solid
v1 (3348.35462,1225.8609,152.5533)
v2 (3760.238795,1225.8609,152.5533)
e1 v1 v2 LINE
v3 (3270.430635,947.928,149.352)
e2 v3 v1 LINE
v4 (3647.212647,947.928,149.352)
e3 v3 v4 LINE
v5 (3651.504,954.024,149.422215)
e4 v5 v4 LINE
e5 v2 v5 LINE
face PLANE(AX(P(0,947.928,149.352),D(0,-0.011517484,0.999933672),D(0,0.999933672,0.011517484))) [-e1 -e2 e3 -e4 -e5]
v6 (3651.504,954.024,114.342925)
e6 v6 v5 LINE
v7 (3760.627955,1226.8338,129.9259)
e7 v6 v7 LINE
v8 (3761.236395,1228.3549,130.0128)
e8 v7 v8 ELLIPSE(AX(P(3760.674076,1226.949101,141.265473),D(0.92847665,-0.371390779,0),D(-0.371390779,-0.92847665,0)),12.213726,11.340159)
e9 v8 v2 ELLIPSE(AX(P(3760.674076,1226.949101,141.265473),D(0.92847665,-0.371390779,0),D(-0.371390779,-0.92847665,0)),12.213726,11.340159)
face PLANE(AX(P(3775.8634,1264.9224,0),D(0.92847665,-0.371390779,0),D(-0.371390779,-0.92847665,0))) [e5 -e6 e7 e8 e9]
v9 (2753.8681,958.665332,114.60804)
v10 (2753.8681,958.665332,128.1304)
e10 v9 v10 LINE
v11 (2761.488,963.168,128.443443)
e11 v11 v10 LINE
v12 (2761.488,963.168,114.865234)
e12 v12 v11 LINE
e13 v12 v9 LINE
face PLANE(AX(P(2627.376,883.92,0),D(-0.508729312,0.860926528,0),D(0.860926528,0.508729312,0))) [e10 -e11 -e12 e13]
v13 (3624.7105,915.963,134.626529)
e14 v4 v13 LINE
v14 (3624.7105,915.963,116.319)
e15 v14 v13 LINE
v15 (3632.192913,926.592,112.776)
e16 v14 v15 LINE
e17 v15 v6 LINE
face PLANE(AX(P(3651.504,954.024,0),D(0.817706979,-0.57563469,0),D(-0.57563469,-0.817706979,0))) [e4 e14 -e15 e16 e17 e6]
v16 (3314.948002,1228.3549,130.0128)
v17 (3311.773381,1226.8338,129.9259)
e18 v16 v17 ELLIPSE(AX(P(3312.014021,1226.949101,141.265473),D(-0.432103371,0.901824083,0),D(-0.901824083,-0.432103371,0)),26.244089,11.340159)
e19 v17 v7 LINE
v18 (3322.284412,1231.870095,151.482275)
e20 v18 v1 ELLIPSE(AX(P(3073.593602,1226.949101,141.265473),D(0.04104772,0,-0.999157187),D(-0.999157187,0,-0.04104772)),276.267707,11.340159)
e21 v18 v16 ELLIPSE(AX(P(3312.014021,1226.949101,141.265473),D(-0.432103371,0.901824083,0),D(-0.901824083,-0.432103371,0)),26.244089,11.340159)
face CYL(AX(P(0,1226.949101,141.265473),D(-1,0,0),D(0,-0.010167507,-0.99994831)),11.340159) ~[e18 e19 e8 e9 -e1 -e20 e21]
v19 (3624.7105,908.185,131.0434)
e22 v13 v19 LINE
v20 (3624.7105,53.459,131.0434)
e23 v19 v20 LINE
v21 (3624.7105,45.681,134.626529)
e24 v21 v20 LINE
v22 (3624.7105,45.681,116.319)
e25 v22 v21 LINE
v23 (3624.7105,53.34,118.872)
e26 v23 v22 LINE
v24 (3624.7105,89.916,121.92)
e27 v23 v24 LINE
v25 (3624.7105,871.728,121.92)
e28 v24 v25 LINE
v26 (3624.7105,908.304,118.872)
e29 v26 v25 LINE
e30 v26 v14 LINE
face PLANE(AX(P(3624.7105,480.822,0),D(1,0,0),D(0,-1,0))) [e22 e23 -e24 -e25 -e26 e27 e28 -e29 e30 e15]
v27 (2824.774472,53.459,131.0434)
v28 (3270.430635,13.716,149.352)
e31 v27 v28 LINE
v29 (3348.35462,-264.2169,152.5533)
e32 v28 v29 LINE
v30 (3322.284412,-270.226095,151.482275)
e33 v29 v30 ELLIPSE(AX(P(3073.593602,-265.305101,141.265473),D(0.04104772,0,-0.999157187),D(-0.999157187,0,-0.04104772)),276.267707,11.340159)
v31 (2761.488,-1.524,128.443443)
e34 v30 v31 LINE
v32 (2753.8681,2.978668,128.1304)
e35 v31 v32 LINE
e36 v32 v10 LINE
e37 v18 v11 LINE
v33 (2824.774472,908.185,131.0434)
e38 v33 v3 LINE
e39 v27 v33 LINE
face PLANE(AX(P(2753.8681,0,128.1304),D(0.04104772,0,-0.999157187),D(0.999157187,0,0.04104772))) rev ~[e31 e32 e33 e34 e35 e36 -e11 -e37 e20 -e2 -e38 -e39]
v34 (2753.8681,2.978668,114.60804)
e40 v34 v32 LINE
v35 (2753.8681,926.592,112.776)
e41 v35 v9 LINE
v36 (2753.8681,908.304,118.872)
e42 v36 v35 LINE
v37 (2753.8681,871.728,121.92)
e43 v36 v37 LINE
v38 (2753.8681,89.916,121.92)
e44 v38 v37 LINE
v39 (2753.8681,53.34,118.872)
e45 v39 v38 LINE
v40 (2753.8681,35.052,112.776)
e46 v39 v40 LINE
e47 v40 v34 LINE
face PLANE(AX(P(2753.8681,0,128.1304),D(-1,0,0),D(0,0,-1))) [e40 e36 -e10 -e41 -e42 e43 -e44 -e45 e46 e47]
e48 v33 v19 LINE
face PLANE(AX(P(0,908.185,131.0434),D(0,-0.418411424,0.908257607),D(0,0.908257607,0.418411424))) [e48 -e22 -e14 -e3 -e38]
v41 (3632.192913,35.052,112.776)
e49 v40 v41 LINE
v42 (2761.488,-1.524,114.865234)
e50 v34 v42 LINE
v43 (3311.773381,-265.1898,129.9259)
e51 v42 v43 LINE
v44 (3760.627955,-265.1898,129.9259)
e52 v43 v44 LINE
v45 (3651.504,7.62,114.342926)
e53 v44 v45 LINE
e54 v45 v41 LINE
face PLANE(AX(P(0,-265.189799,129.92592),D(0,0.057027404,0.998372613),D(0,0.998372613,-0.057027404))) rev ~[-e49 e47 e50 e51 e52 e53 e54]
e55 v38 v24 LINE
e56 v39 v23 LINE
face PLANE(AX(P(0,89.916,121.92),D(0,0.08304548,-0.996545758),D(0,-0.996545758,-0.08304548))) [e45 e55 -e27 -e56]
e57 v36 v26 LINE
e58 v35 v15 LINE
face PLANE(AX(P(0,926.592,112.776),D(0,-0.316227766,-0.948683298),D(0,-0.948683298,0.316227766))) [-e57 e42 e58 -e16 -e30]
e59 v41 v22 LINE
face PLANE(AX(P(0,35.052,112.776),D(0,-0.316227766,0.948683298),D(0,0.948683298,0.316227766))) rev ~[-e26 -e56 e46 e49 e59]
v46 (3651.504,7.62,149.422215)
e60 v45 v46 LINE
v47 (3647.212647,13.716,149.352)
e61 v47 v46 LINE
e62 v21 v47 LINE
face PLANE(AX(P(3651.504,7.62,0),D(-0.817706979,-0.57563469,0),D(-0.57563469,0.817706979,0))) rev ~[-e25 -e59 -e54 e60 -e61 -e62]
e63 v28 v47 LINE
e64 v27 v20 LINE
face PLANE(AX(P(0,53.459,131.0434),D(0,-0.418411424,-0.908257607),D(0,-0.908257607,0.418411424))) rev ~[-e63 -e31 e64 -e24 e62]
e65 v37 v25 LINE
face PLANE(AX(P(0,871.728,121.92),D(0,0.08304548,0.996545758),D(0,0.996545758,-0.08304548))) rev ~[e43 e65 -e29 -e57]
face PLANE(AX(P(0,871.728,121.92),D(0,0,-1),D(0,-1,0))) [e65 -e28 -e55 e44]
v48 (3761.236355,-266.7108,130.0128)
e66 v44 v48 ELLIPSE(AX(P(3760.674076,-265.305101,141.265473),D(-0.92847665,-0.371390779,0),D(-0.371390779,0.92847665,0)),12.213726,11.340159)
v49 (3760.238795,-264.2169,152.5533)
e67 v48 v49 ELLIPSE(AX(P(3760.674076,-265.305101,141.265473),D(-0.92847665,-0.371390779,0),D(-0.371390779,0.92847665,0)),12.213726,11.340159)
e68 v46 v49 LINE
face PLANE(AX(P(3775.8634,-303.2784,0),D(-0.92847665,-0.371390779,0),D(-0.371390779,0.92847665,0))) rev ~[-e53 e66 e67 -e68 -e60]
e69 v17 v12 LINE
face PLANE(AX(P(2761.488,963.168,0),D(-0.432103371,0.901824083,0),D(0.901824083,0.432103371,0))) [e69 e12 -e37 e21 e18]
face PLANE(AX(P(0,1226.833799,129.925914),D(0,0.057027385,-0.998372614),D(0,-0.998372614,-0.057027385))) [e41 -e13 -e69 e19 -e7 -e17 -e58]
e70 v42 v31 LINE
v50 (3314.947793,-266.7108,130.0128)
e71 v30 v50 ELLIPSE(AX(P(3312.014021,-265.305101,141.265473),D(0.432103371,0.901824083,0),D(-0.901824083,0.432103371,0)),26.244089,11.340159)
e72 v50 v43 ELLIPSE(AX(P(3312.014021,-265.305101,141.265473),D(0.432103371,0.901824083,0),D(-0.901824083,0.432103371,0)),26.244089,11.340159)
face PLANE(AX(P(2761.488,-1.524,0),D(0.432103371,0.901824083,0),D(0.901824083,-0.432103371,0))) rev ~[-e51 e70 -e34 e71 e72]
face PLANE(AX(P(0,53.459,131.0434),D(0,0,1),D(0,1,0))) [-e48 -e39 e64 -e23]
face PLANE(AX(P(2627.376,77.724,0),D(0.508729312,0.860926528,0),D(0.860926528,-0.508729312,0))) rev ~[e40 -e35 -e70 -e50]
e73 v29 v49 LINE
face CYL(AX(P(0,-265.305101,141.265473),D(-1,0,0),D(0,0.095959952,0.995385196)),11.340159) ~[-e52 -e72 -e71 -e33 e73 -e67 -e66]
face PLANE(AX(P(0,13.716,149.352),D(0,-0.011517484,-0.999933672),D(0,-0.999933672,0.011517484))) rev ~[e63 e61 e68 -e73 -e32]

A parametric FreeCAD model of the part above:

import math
import FreeCAD as App
import Part
import Sketcher

V = App.Vector
Q = App.Units.Quantity


def add_polygon(sketch, points):
    """Adds a closed chain of lines whose ends are joined by coincident constraints."""
    first, n = sketch.GeometryCount, len(points)
    for a, b in zip(points, points[1:] + points[:1]):
        sketch.addGeometry(Part.LineSegment(App.Vector(*a, 0), App.Vector(*b, 0)), False)
    for i in range(n):
        sketch.addConstraint(Sketcher.Constraint("Coincident", first + i, 2, first + (i + 1) % n, 1))

doc = App.newDocument("Part")
body = doc.addObject("PartDesign::Body", "Body")

# Sketch on XY plane
sketch1 = body.newObject("Sketcher::SketchObject", "Sketch")
sketch1.AttachmentSupport = (doc.getObject("XY_Plane"), [""])
sketch1.MapMode = "FlatFace"
add_polygon(sketch1, [(3624.7105, 45.681), (3624.7105, 915.963), (3651.504, 954.024), (3775.8634, 1264.9224), (3394.4421, 1266.444), (2761.488, 963.168), (2627.376, 883.92), (2627.376, 77.724), (2761.488, -1.524), (3394.4421, -304.8), (3775.8634, -303.2784), (3651.504, 7.62)])  # lines 0-11
sketch1.addConstraint([
    Sketcher.Constraint("Vertical", 0),
    Sketcher.Constraint("Vertical", 6),
    Sketcher.Constraint("DistanceY", 8, 2, -1, 1, Q("12 in")),
    Sketcher.Constraint("DistanceY", 6, 2, 6, 1, Q("31.74 in")),
    Sketcher.Constraint("DistanceY", -1, 1, 5, 2, Q("34.8 in")),
    Sketcher.Constraint("DistanceY", -1, 1, 10, 2, Q("0.3 in")),
    Sketcher.Constraint("DistanceY", 1, 2, 3, 2, Q("12.3 in")),
    Sketcher.Constraint("DistanceY", 6, 2, 1, 2, Q("34.5 in")),
    Sketcher.Constraint("DistanceX", -1, 1, 1, 2, Q("143.76 in")),
    Sketcher.Constraint("DistanceX", -1, 1, 4, 2, Q("108.72 in")),
    Sketcher.Constraint("DistanceY", -1, 1, 4, 2, Q("37.92 in")),
    Sketcher.Constraint("DistanceX", -1, 1, 5, 2, Q("103.44 in")),
    Sketcher.Constraint("DistanceX", -1, 1, 7, 2, Q("108.72 in")),
    Sketcher.Constraint("DistanceY", 7, 2, -1, 1, Q("0.06 in")),
    Sketcher.Constraint("DistanceX", -1, 1, 10, 2, Q("143.76 in")),
    Sketcher.Constraint("Distance", 3, Q("15.0167 in")),
    Sketcher.Constraint("Distance", 9, Q("15.0167 in")),
    Sketcher.Constraint("DistanceY", 0, 1, 0, 2, Q("870.282 mm")),
    Sketcher.Constraint("DistanceY", -1, 1, 2, 2, Q("49.8001 in")),
    Sketcher.Constraint("DistanceY", 9, 2, -1, 1, Q("11.9401 in")),
    Sketcher.Constraint("DistanceX", 0, 2, 2, 2, Q("5.9509 in")),
    Sketcher.Constraint("DistanceX", 0, 2, 9, 2, Q("5.9509 in")),
    Sketcher.Constraint("Distance", 1, Q("46.546 mm")),
    Sketcher.Constraint("Distance", 2, Q("334.8478 mm")),
])
pad1 = body.newObject("PartDesign::Pad", "Pad")
pad1.Profile = sketch1
pad1.Length = Q("8.4 in")

# Sketch on YZ plane
sketch2 = body.newObject("Sketcher::SketchObject", "Sketch001")
sketch2.AttachmentSupport = (doc.getObject("YZ_Plane"), [""])
sketch2.MapMode = "FlatFace"
add_polygon(sketch2, [(-324.612, -12.192), (480.822, -12.192), (1286.256, -12.192), (1286.256, 231.648), (-324.612, 231.648)])  # lines 0-4
sketch2.addGeometry(Part.LineSegment(V(53.459, 131.0434, 0), V(908.185, 131.0434, 0)), False)  # 5
sketch2.addGeometry(Part.LineSegment(V(908.185, 131.0434, 0), V(947.928, 149.352, 0)), False)  # 6
sketch2.addGeometry(Part.LineSegment(V(947.928, 149.352, 0), V(1225.8609, 152.5533, 0)), False)  # 7
sketch2.addGeometry(Part.ArcOfCircle(Part.Circle(V(1226.9491, 141.2655, 0), V(0, 0, 1), 11.340186), math.radians(-90.582558), math.radians(95.506581)), False)  # 8
sketch2.addGeometry(Part.LineSegment(V(1226.833799, 129.925914, 0), V(926.592, 112.776, 0)), False)  # 9
sketch2.addGeometry(Part.LineSegment(V(926.592, 112.776, 0), V(908.304, 118.872, 0)), False)  # 10
sketch2.addGeometry(Part.LineSegment(V(908.304, 118.872, 0), V(871.728, 121.92, 0)), False)  # 11
sketch2.addGeometry(Part.LineSegment(V(871.728, 121.92, 0), V(480.822, 121.92, 0)), False)  # 12
sketch2.addGeometry(Part.LineSegment(V(480.822, 121.92, 0), V(89.916, 121.92, 0)), False)  # 13
sketch2.addGeometry(Part.LineSegment(V(89.916, 121.92, 0), V(53.34, 118.872, 0)), False)  # 14
sketch2.addGeometry(Part.LineSegment(V(53.34, 118.872, 0), V(35.052, 112.776, 0)), False)  # 15
sketch2.addGeometry(Part.LineSegment(V(35.052, 112.776, 0), V(-265.189799, 129.92592, 0)), False)  # 16
sketch2.addGeometry(Part.ArcOfCircle(Part.Circle(V(-265.3051, 141.2655, 0), V(0, 0, 1), 11.340133), math.radians(84.493419), math.radians(270.582558)), False)  # 17
sketch2.addGeometry(Part.LineSegment(V(-264.2169, 152.5533, 0), V(13.716, 149.352, 0)), False)  # 18
sketch2.addGeometry(Part.LineSegment(V(13.716, 149.352, 0), V(53.459, 131.0434, 0)), False)  # 19
sketch2.addConstraint([
    Sketcher.Constraint("Coincident", 5, 2, 6, 1),
    Sketcher.Constraint("Coincident", 6, 2, 7, 1),
    Sketcher.Constraint("Coincident", 7, 2, 8, 2),
    Sketcher.Constraint("Coincident", 8, 1, 9, 1),
    Sketcher.Constraint("Coincident", 9, 2, 10, 1),
    Sketcher.Constraint("Coincident", 10, 2, 11, 1),
    Sketcher.Constraint("Coincident", 11, 2, 12, 1),
    Sketcher.Constraint("Coincident", 12, 2, 13, 1),
    Sketcher.Constraint("Coincident", 13, 2, 14, 1),
    Sketcher.Constraint("Coincident", 14, 2, 15, 1),
    Sketcher.Constraint("Coincident", 15, 2, 16, 1),
    Sketcher.Constraint("Coincident", 16, 2, 17, 2),
    Sketcher.Constraint("Coincident", 17, 1, 18, 1),
    Sketcher.Constraint("Coincident", 18, 2, 19, 1),
    Sketcher.Constraint("Coincident", 19, 2, 5, 1),
    Sketcher.Constraint("Horizontal", 0),
    Sketcher.Constraint("Horizontal", 1),
    Sketcher.Constraint("Vertical", 2),
    Sketcher.Constraint("Horizontal", 3),
    Sketcher.Constraint("Vertical", 4),
    Sketcher.Constraint("Horizontal", 5),
    Sketcher.Constraint("Horizontal", 12),
    Sketcher.Constraint("Horizontal", 13),
    Sketcher.Constraint("DistanceY", 2, 1, 2, 2, Q("9.6 in")),
    Sketcher.Constraint("DistanceX", 11, 2, 6, 2, Q("3 in")),
    Sketcher.Constraint("DistanceX", 18, 2, 13, 2, Q("3 in")),
    Sketcher.Constraint("DistanceX", 0, 1, 0, 2, Q("31.71 in")),
    Sketcher.Constraint("DistanceX", 1, 1, 1, 2, Q("31.71 in")),
    Sketcher.Constraint("DistanceX", 12, 2, 12, 1, Q("15.39 in")),
    Sketcher.Constraint("DistanceX", 13, 2, 13, 1, Q("15.39 in")),
    Sketcher.Constraint("DistanceY", -1, 1, 11, 2, Q("4.8 in")),
    Sketcher.Constraint("DistanceX", -1, 1, 14, 2, Q("2.1 in")),
    Sketcher.Constraint("DistanceY", 10, 2, 6, 2, Q("1.2 in")),
    Sketcher.Constraint("DistanceY", 14, 2, 18, 2, Q("1.2 in")),
    Sketcher.Constraint("DistanceX", -1, 1, 0, 2, Q("18.93 in")),
    Sketcher.Constraint("DistanceY", 0, 2, -1, 1, Q("0.48 in")),
    Sketcher.Constraint("DistanceX", -1, 1, 6, 2, Q("37.32 in")),
    Sketcher.Constraint("DistanceY", -1, 1, 6, 2, Q("5.88 in")),
    Sketcher.Constraint("DistanceX", -1, 1, 9, 2, Q("36.48 in")),
    Sketcher.Constraint("DistanceY", -1, 1, 9, 2, Q("4.44 in")),
    Sketcher.Constraint("DistanceX", -1, 1, 10, 2, Q("35.76 in")),
    Sketcher.Constraint("DistanceY", -1, 1, 14, 2, Q("4.68 in")),
    Sketcher.Constraint("DistanceX", -1, 1, 15, 2, Q("1.38 in")),
    Sketcher.Constraint("DistanceY", -1, 1, 15, 2, Q("4.44 in")),
    Sketcher.Constraint("Radius", 8, Q("11.3402 mm")),
    Sketcher.Constraint("Radius", 17, Q("11.3401 mm")),
    Sketcher.Constraint("Distance", 9, Q("11.8398 in")),
    Sketcher.Constraint("Distance", 16, Q("11.8398 in")),
    Sketcher.Constraint("DistanceX", 5, 1, 5, 2, Q("854.726 mm")),
    Sketcher.Constraint("DistanceY", -1, 1, 5, 2, Q("5.1592 in")),
    Sketcher.Constraint("DistanceY", -1, 1, 8, 1, Q("5.1152 in")),
    Sketcher.Constraint("DistanceY", -1, 1, 16, 2, Q("5.1152 in")),
    Sketcher.Constraint("DistanceX", 17, 3, 5, 2, Q("46.2004 in")),
    Sketcher.Constraint("DistanceY", 8, 3, 7, 2, Q("0.4444 in")),
    Sketcher.Constraint("DistanceX", 7, 2, 8, 1, Q("0.0383 in")),
    Sketcher.Constraint("DistanceY", 17, 3, 17, 1, Q("0.4444 in")),
    Sketcher.Constraint("DistanceX", 16, 2, 17, 1, Q("0.0383 in")),
])
pocket1 = body.newObject("PartDesign::Pocket", "Pocket")
pocket1.Profile = sketch2
pocket1.Length = Q("163.2 in")
pocket1.Reversed = True

# Sketch on XZ plane
sketch3 = body.newObject("Sketcher::SketchObject", "Sketch002")
sketch3.AttachmentSupport = (doc.getObject("XZ_Plane"), [""])
sketch3.MapMode = "FlatFace"
add_polygon(sketch3, [(2591, 30), (2591, 213), (3810, 213), (3810, 30)])  # lines 0-3
add_polygon(sketch3, [(3493, 158), (2754, 128), (2754, 113), (3347, 91), (3780, 91), (3780, 171)])  # lines 4-9
sketch3.addConstraint([
    Sketcher.Constraint("Vertical", 0),
    Sketcher.Constraint("Horizontal", 1),
    Sketcher.Constraint("Vertical", 2),
    Sketcher.Constraint("Horizontal", 3),
    Sketcher.Constraint("Vertical", 5),
    Sketcher.Constraint("Horizontal", 7),
    Sketcher.Constraint("Vertical", 8),
    Sketcher.Constraint("DistanceX", 1, 1, 1, 2, Q("48 in")),
    Sketcher.Constraint("DistanceY", 0, 1, 0, 2, Q("7.2 in")),
    Sketcher.Constraint("DistanceX", -1, 1, 0, 2, Q("102 in")),
    Sketcher.Constraint("DistanceX", 7, 1, 7, 2, Q("17.04 in")),
    Sketcher.Constraint("DistanceY", 8, 1, 8, 2, Q("3.12 in")),
    Sketcher.Constraint("DistanceY", -1, 1, 0, 2, Q("8.4 in")),
    Sketcher.Constraint("DistanceY", -1, 1, 6, 2, Q("3.6 in")),
    Sketcher.Constraint("DistanceX", -1, 1, 7, 2, Q("148.8 in")),
    Sketcher.Constraint("DistanceX", -1, 1, 4, 2, Q("108.42 in")),
    Sketcher.Constraint("DistanceY", -1, 1, 5, 2, Q("4.44 in")),
    Sketcher.Constraint("DistanceX", -1, 1, 9, 2, Q("137.52 in")),
    Sketcher.Constraint("DistanceY", -1, 1, 9, 2, Q("6.24 in")),
    Sketcher.Constraint("DistanceY", 5, 2, 5, 1, Q("0.6045 in")),
])
pocket2 = body.newObject("PartDesign::Pocket", "Pocket001")
pocket2.Profile = sketch3
pocket2.Length = Q("122.4 in")
pocket2.Midplane = True

doc.recompute()
